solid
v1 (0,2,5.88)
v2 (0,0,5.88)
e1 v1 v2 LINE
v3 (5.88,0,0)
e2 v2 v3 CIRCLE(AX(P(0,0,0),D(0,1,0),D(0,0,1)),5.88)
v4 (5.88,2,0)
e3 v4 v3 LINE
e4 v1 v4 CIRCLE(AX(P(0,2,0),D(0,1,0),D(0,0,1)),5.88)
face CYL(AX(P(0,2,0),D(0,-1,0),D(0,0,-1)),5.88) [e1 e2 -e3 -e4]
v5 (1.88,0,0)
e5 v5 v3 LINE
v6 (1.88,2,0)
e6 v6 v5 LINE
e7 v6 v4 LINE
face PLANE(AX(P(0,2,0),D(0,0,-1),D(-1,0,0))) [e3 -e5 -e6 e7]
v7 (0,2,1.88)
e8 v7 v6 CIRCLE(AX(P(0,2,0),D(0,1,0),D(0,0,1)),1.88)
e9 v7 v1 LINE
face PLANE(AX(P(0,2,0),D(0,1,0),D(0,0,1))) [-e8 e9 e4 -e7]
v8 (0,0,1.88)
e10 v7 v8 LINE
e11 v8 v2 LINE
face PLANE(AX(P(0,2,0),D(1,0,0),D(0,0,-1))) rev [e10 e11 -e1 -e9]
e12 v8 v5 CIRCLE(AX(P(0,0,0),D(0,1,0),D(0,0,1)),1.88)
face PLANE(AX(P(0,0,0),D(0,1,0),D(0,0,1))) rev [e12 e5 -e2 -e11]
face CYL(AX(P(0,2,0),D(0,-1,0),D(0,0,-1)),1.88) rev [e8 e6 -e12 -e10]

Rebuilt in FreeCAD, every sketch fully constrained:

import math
import FreeCAD as App
import Part
import Sketcher

V = App.Vector
Q = App.Units.Quantity

doc = App.newDocument("Part")
params = doc.addObject("Spreadsheet::Sheet", "Params")
for row, (alias, value) in enumerate([
    ("sketch1_width", "4 mm"),
    ("sketch1_radius", "1.88 mm"),
    ("pad1_length", "2 mm"),
], start=1):
    params.set(f"A{row}", alias)
    params.set(f"B{row}", "=" + value)
    params.setAlias(f"B{row}", alias)

body = doc.addObject("PartDesign::Body", "Body")

sketch1 = doc.addObject("Sketcher::SketchObject", "Sketch")
body.addObject(sketch1)
sketch1.AttachmentSupport = (doc.XZ_Plane, [""])
sketch1.MapMode = "FlatFace"
sketch1.addGeometry([
    Part.LineSegment(V(5.9, 0, 0), V(1.9, 0, 0)),
    Part.ArcOfCircle(Part.Circle(V(0, 0, 0), V(0, 0, 1), 1.9), math.radians(0), math.radians(90)),
    Part.LineSegment(V(0, 1.9, 0), V(0, 5.9, 0)),
    Part.ArcOfCircle(Part.Circle(V(0, 0, 0), V(0, 0, 1), 5.9), math.radians(0), math.radians(90)),
], False)
sketch1.addConstraint([
    Sketcher.Constraint("Coincident", 0, 2, 1, 1),
    Sketcher.Constraint("Coincident", 1, 2, 2, 1),
    Sketcher.Constraint("Coincident", 2, 2, 3, 2),
    Sketcher.Constraint("Coincident", 3, 1, 0, 1),
    Sketcher.Constraint("Horizontal", 0),
    Sketcher.Constraint("Vertical", 2),
    Sketcher.Constraint("Coincident", 1, 3, -1, 1),
    Sketcher.Constraint("Coincident", 3, 3, -1, 1),
    Sketcher.Constraint("PointOnObject", 0, 2, -1),
    Sketcher.Constraint("PointOnObject", 1, 2, -2),
    Sketcher.Constraint("DistanceX", 0, 2, 0, 1, Q("4 mm")),
    Sketcher.Constraint("Radius", 1, Q("1.88 mm")),
])
sketch1.setExpression("Constraints[10]", "Params.sketch1_width")
sketch1.setExpression("Constraints[11]", "Params.sketch1_radius")
pad1 = doc.addObject("PartDesign::Pad", "Pad")
body.addObject(pad1)
pad1.Profile = sketch1
pad1.setExpression("Length", "Params.pad1_length")
pad1.Reversed = True

doc.recompute()
